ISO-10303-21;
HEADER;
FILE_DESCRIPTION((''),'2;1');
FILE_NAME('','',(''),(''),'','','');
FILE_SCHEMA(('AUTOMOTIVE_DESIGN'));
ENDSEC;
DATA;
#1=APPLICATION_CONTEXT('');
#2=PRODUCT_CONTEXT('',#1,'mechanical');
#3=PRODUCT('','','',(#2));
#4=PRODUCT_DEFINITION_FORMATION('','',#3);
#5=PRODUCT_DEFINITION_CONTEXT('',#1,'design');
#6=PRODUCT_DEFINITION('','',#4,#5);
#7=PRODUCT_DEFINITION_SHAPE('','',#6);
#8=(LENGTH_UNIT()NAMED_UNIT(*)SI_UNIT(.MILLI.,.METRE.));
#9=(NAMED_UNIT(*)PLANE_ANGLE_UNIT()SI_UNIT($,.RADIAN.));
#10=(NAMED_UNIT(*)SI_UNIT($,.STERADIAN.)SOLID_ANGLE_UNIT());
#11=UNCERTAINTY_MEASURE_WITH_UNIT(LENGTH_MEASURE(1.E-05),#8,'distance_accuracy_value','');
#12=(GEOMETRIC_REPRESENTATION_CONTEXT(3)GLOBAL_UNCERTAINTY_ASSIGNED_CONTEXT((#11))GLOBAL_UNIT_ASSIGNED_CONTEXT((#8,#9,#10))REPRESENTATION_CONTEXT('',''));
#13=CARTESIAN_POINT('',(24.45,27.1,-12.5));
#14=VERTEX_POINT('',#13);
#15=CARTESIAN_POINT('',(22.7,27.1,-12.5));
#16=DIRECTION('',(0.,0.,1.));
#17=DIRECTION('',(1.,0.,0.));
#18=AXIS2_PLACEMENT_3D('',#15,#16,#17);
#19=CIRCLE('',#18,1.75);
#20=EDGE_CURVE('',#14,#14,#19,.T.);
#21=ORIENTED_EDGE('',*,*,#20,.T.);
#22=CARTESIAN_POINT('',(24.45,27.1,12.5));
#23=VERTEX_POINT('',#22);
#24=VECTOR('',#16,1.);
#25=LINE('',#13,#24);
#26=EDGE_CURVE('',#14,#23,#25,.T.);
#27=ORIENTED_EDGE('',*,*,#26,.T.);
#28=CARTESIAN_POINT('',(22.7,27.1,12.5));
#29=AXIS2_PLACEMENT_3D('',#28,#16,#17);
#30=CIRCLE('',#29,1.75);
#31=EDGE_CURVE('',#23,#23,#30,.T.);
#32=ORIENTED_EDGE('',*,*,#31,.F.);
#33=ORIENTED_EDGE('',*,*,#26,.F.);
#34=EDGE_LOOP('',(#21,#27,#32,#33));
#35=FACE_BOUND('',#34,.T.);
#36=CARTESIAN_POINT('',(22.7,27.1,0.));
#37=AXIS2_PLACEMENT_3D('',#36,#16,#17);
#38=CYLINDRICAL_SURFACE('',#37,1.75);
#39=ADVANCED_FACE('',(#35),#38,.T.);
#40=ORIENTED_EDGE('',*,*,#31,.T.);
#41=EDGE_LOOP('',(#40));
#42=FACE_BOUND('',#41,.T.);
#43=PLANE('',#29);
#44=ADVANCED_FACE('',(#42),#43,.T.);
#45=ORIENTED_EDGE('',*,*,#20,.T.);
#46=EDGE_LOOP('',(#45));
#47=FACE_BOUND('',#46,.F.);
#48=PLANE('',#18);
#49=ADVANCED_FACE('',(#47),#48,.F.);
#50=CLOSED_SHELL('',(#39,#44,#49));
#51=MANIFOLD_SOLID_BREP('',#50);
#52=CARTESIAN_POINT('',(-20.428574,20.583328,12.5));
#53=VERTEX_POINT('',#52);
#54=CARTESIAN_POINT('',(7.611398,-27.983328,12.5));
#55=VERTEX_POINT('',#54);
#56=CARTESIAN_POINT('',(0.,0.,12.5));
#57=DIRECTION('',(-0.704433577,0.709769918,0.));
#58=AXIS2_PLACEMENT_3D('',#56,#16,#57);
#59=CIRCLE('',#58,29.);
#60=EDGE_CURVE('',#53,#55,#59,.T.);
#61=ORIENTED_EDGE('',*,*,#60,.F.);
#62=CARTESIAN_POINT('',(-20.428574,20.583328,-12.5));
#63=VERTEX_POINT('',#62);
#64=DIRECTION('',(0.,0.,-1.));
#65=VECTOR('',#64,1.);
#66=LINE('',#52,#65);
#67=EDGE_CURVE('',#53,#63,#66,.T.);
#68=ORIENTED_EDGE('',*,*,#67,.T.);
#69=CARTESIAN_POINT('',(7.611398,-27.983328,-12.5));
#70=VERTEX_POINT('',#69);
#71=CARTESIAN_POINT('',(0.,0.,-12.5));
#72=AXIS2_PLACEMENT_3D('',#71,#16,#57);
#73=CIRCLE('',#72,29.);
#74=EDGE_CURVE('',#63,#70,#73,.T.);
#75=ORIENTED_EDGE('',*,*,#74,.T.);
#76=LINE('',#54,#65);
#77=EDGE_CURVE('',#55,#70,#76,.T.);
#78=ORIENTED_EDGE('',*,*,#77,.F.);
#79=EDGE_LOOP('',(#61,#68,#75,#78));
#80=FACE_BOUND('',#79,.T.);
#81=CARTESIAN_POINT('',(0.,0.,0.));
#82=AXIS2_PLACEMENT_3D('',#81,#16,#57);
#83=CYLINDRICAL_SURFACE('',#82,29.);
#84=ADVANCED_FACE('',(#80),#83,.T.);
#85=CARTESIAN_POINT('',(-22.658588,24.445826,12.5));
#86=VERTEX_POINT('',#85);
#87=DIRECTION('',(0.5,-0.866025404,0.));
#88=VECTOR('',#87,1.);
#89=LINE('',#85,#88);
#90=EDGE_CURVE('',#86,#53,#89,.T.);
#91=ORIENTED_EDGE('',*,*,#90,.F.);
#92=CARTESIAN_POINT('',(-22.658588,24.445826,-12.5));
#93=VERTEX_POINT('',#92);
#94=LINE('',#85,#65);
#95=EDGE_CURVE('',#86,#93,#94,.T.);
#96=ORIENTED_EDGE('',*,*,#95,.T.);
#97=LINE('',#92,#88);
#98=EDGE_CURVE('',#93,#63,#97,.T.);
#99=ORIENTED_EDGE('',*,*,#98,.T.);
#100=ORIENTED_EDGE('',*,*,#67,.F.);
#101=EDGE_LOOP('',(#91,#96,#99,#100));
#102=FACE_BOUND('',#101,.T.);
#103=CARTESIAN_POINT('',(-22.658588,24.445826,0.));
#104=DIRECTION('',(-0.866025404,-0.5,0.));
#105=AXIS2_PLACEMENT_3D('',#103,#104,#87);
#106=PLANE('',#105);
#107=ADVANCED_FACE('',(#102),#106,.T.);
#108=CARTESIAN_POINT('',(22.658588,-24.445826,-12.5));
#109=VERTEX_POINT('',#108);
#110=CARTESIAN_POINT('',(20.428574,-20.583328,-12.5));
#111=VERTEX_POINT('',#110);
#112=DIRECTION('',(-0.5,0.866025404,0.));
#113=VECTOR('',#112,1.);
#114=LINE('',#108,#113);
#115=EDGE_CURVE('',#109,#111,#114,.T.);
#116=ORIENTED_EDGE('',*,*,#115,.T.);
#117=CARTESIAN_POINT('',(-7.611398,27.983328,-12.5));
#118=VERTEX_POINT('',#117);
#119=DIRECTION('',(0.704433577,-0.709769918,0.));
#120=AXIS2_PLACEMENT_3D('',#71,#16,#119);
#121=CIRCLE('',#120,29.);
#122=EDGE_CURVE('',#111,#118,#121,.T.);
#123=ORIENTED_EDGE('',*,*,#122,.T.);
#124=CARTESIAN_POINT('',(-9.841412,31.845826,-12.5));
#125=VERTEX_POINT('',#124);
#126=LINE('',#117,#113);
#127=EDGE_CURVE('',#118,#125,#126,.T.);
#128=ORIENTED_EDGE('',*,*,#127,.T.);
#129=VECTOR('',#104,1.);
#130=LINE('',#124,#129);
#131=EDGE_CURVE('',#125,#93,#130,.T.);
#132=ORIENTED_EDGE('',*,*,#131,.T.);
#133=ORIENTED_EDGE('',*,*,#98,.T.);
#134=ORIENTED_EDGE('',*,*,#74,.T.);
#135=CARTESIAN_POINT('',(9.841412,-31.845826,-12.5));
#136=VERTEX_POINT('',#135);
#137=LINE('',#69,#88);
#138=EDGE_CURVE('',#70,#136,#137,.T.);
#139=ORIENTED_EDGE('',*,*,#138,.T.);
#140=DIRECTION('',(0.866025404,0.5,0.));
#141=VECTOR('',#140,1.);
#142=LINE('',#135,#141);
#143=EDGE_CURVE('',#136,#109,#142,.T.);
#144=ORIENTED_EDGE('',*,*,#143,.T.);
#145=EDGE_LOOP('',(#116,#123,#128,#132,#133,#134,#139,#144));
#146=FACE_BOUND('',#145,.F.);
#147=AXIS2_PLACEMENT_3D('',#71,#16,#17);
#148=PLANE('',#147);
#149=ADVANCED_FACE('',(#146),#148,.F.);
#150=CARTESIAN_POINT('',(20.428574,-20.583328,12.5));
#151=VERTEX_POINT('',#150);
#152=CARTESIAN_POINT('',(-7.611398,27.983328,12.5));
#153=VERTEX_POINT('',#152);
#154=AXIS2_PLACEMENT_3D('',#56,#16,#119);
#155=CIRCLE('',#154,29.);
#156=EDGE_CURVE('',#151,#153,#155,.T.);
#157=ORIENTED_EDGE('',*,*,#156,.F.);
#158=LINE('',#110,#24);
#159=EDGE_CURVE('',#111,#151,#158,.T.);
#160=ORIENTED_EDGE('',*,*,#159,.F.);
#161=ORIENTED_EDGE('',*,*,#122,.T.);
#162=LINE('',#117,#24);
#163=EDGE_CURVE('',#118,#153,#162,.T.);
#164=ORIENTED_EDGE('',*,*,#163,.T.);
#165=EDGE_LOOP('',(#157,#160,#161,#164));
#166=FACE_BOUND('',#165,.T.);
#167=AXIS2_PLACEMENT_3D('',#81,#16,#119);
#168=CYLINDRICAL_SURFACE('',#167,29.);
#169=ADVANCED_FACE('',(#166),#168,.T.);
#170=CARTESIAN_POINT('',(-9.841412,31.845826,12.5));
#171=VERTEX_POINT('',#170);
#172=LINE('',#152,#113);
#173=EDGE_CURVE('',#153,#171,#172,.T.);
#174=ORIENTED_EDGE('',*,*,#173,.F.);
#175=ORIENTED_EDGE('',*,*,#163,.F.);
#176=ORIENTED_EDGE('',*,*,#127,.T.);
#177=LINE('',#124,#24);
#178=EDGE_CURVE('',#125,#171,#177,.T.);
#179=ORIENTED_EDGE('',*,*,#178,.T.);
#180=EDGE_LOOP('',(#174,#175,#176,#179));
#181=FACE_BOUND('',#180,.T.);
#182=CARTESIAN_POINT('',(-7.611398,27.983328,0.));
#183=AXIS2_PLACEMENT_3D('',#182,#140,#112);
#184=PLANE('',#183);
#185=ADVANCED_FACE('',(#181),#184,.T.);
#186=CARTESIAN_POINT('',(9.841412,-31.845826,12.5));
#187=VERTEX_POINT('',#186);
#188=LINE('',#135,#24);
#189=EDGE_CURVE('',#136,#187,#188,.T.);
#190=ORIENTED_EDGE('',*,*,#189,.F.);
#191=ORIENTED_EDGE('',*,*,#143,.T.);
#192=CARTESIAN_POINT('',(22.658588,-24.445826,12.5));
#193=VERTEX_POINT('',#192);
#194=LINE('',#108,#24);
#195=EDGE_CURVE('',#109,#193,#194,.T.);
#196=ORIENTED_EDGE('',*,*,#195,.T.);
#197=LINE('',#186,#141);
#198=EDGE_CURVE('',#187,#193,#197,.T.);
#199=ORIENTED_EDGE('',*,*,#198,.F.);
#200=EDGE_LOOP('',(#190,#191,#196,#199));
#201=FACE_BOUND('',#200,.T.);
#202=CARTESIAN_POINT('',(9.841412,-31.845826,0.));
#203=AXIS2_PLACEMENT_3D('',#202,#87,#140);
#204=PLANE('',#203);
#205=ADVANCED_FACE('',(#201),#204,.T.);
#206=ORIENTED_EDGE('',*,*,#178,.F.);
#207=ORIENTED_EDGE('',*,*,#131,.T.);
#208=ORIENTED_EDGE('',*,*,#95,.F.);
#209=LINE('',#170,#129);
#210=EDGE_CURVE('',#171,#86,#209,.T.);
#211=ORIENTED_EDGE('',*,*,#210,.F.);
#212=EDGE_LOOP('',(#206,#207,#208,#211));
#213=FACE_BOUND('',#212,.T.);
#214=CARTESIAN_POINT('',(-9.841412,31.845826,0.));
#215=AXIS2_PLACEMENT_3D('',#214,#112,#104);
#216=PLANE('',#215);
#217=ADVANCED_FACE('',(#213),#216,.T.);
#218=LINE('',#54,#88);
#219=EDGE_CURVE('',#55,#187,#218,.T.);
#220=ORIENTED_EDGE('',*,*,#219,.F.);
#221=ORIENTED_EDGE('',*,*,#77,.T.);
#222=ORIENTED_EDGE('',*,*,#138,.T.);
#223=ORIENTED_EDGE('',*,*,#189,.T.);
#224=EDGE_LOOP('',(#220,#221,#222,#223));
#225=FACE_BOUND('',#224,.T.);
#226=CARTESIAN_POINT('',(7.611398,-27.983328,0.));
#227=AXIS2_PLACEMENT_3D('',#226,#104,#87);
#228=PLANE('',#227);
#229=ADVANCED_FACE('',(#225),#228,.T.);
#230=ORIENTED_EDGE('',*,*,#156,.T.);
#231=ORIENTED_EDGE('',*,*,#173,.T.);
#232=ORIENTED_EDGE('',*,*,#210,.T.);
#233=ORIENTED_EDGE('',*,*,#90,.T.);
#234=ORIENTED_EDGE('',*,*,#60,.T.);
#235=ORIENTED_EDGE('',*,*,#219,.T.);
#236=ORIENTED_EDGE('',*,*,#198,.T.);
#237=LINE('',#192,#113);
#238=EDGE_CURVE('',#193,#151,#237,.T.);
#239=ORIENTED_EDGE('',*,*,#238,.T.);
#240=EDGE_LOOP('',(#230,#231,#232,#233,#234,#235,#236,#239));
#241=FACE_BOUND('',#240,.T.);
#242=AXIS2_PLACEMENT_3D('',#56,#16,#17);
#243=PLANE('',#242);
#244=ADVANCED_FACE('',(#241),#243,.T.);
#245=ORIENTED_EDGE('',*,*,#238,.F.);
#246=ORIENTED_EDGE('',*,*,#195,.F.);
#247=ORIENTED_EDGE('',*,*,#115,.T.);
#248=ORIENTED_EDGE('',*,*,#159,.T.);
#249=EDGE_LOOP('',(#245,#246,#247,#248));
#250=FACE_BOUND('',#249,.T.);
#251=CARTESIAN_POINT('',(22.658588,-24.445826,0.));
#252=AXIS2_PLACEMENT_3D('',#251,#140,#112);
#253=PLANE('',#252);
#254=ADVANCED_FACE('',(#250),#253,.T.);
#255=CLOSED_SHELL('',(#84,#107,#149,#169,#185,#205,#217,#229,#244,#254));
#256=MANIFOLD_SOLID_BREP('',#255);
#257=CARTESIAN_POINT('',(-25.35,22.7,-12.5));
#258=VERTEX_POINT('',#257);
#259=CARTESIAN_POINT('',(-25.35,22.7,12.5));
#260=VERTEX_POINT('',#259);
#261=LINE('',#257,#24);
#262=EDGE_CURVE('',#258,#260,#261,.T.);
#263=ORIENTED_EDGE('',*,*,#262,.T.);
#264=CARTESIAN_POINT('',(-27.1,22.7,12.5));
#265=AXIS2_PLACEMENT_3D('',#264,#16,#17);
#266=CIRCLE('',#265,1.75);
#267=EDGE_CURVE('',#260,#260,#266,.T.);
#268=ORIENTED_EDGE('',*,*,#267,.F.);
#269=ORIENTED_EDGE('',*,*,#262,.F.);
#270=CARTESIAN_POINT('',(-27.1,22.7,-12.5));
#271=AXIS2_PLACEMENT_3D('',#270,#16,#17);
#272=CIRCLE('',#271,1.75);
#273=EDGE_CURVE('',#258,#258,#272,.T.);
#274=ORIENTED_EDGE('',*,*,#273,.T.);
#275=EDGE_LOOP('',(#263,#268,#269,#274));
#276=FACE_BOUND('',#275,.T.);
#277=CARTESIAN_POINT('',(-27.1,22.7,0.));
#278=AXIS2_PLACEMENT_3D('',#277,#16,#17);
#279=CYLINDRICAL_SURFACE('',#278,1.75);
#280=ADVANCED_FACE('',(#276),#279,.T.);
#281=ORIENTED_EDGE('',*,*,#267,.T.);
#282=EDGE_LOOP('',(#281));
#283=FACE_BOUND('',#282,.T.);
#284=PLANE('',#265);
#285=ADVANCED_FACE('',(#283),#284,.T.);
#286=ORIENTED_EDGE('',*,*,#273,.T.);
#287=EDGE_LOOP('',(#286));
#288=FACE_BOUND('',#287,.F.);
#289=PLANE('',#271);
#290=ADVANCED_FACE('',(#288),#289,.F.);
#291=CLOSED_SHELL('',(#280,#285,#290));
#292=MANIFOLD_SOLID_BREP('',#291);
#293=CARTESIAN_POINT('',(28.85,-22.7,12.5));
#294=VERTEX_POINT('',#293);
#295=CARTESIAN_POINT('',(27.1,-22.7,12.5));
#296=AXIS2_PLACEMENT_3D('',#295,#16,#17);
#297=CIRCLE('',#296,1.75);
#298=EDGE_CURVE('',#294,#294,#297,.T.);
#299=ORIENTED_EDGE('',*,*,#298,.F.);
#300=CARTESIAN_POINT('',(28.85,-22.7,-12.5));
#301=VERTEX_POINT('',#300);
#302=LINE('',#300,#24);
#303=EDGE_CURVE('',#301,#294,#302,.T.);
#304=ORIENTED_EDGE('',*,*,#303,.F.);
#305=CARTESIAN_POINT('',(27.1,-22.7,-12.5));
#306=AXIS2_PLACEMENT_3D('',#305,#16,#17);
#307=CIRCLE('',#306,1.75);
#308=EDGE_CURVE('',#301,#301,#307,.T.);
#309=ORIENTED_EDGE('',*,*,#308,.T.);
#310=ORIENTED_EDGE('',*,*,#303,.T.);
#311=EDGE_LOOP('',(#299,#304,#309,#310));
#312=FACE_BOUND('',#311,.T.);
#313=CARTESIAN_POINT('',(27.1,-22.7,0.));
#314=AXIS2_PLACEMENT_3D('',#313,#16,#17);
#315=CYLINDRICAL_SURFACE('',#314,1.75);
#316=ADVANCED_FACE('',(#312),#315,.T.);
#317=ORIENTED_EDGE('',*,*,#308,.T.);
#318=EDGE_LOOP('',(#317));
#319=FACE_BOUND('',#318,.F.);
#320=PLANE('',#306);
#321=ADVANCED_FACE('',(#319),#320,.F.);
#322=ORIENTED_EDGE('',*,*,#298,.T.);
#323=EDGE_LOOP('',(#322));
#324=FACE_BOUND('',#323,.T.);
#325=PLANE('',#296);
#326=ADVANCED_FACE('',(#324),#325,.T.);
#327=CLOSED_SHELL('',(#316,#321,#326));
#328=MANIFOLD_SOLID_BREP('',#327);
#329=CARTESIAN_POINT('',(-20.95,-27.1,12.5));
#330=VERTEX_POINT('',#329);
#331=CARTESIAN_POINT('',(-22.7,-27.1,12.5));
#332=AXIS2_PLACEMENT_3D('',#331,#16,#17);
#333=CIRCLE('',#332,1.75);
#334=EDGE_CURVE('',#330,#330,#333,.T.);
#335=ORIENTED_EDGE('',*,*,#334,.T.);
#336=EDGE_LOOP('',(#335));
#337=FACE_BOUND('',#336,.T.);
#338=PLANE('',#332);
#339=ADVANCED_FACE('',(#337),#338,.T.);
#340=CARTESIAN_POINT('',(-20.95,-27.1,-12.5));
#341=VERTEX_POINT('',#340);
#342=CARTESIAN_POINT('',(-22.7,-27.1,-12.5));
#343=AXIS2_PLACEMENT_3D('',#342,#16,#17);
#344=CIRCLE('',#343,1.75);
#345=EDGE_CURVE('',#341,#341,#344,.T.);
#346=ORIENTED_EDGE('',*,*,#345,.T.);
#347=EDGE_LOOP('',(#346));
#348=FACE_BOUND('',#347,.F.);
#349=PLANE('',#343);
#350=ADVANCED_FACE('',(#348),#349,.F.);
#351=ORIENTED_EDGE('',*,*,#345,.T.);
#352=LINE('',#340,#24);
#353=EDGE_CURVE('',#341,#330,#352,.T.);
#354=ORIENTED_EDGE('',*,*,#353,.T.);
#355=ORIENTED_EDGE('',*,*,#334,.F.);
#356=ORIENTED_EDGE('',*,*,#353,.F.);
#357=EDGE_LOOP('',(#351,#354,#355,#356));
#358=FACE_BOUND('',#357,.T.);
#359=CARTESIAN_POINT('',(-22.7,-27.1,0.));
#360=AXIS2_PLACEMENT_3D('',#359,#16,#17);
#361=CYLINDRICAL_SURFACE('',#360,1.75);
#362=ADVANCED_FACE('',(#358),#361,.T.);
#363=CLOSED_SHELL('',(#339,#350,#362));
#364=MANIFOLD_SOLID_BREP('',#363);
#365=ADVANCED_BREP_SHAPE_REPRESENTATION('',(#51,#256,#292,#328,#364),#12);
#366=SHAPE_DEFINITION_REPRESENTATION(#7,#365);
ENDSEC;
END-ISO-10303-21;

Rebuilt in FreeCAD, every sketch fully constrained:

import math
import FreeCAD as App
import Part
import Sketcher
from FreeCAD import Vector
Q = App.Units.Quantity

doc = App.newDocument("Part")
body = doc.addObject("PartDesign::Body", "Body")

sketch1 = body.newObject("Sketcher::SketchObject", "Sketch")
sketch1.AttachmentSupport = (doc.getObject("XY_Plane"), [""])
sketch1.MapMode = "FlatFace"
sketch1.addGeometry([
    Part.LineSegment(Vector(7.6, -28, 0), Vector(9.8, -31.8, 0)),
    Part.LineSegment(Vector(9.8, -31.8, 0), Vector(22.7, -24.4, 0)),
    Part.LineSegment(Vector(22.7, -24.4, 0), Vector(20.4, -20.6, 0)),
    Part.ArcOfCircle(Part.Circle(Vector(0, 0, 0), Vector(0, 0, 1), 29), math.radians(-45), math.radians(105)),
    Part.LineSegment(Vector(-7.6, 28, 0), Vector(-9.8, 31.8, 0)),
    Part.LineSegment(Vector(-9.8, 31.8, 0), Vector(-22.7, 24.4, 0)),
    Part.LineSegment(Vector(-22.7, 24.4, 0), Vector(-20.4, 20.6, 0)),
    Part.ArcOfCircle(Part.Circle(Vector(0, 0, 0), Vector(0, 0, 1), 29), math.radians(135), math.radians(285)),
], False)
sketch1.addConstraint([
    Sketcher.Constraint("Coincident", 0, 2, 1, 1),
    Sketcher.Constraint("Coincident", 1, 2, 2, 1),
    Sketcher.Constraint("Coincident", 2, 2, 3, 1),
    Sketcher.Constraint("Coincident", 3, 2, 4, 1),
    Sketcher.Constraint("Coincident", 4, 2, 5, 1),
    Sketcher.Constraint("Coincident", 5, 2, 6, 1),
    Sketcher.Constraint("Coincident", 6, 2, 7, 1),
    Sketcher.Constraint("Coincident", 7, 2, 0, 1),
    Sketcher.Constraint("Coincident", 3, 3, -1, 1),
    Sketcher.Constraint("Coincident", 7, 3, -1, 1),
    Sketcher.Constraint("Equal", 3, 7),
    Sketcher.Constraint("Symmetric", 0, 2, 4, 2, -1, 1),
    Sketcher.Constraint("Symmetric", 1, 2, 5, 2, -1, 1),
    Sketcher.Constraint("Perpendicular", 0, 1),
    Sketcher.Constraint("Perpendicular", 1, 2),
    Sketcher.Constraint("Parallel", 2, 4),
    Sketcher.Constraint("Perpendicular", 5, 6),
    Sketcher.Constraint("Equal", 0, 2),
    Sketcher.Constraint("Radius", 3, Q("29 mm")),
    Sketcher.Constraint("Angle", 0, Q("-60 deg")),
    Sketcher.Constraint("Distance", 1, Q("14.8 mm")),
    Sketcher.Constraint("DistanceX", 4, 2, 1, 2, Q("32.5 mm")),
])
pad1 = body.newObject("PartDesign::Pad", "Pad")
pad1.Profile = sketch1
pad1.Length = 25
pad1.Midplane = True
body2 = doc.addObject("PartDesign::Body", "Body001")

sketch2 = body2.newObject("Sketcher::SketchObject", "Sketch001")
sketch2.AttachmentSupport = (doc.getObject("XY_Plane001"), [""])
sketch2.MapMode = "FlatFace"
sketch2.addGeometry(Part.Circle(Vector(27.1, -22.7, 0), Vector(0, 0, 1), 1.8), False)
sketch2.addConstraint([
    Sketcher.Constraint("Diameter", 0, Q("3.5 mm")),
    Sketcher.Constraint("DistanceX", -1, 1, 0, 3, Q("27.1 mm")),
    Sketcher.Constraint("DistanceY", 0, 3, -1, 1, Q("22.7 mm")),
])
pad2 = body2.newObject("PartDesign::Pad", "Pad001")
pad2.Profile = sketch2
pad2.Length = 25
pad2.Midplane = True
body3 = doc.addObject("PartDesign::Body", "Body002")

sketch3 = body3.newObject("Sketcher::SketchObject", "Sketch002")
sketch3.AttachmentSupport = (doc.getObject("XY_Plane002"), [""])
sketch3.MapMode = "FlatFace"
sketch3.addGeometry(Part.Circle(Vector(22.7, 27.1, 0), Vector(0, 0, 1), 1.8), False)
sketch3.addConstraint([
    Sketcher.Constraint("Diameter", 0, Q("3.5 mm")),
    Sketcher.Constraint("DistanceX", -1, 1, 0, 3, Q("22.7 mm")),
    Sketcher.Constraint("DistanceY", -1, 1, 0, 3, Q("27.1 mm")),
])
pad3 = body3.newObject("PartDesign::Pad", "Pad002")
pad3.Profile = sketch3
pad3.Length = 25
pad3.Midplane = True
body4 = doc.addObject("PartDesign::Body", "Body003")

sketch4 = body4.newObject("Sketcher::SketchObject", "Sketch003")
sketch4.AttachmentSupport = (doc.getObject("XY_Plane003"), [""])
sketch4.MapMode = "FlatFace"
sketch4.addGeometry(Part.Circle(Vector(-27.1, 22.7, 0), Vector(0, 0, 1), 1.8), False)
sketch4.addConstraint([
    Sketcher.Constraint("Diameter", 0, Q("3.5 mm")),
    Sketcher.Constraint("DistanceX", 0, 3, -1, 1, Q("27.1 mm")),
    Sketcher.Constraint("DistanceY", -1, 1, 0, 3, Q("22.7 mm")),
])
pad4 = body4.newObject("PartDesign::Pad", "Pad003")
pad4.Profile = sketch4
pad4.Length = 25
pad4.Midplane = True
body5 = doc.addObject("PartDesign::Body", "Body004")

sketch5 = body5.newObject("Sketcher::SketchObject", "Sketch004")
sketch5.AttachmentSupport = (doc.getObject("XY_Plane004"), [""])
sketch5.MapMode = "FlatFace"
sketch5.addGeometry(Part.Circle(Vector(-22.7, -27.1, 0), Vector(0, 0, 1), 1.8), False)
sketch5.addConstraint([
    Sketcher.Constraint("Diameter", 0, Q("3.5 mm")),
    Sketcher.Constraint("DistanceX", 0, 3, -1, 1, Q("22.7 mm")),
    Sketcher.Constraint("DistanceY", 0, 3, -1, 1, Q("27.1 mm")),
])
pad5 = body5.newObject("PartDesign::Pad", "Pad004")
pad5.Profile = sketch5
pad5.Length = 25
pad5.Midplane = True

doc.recompute()
